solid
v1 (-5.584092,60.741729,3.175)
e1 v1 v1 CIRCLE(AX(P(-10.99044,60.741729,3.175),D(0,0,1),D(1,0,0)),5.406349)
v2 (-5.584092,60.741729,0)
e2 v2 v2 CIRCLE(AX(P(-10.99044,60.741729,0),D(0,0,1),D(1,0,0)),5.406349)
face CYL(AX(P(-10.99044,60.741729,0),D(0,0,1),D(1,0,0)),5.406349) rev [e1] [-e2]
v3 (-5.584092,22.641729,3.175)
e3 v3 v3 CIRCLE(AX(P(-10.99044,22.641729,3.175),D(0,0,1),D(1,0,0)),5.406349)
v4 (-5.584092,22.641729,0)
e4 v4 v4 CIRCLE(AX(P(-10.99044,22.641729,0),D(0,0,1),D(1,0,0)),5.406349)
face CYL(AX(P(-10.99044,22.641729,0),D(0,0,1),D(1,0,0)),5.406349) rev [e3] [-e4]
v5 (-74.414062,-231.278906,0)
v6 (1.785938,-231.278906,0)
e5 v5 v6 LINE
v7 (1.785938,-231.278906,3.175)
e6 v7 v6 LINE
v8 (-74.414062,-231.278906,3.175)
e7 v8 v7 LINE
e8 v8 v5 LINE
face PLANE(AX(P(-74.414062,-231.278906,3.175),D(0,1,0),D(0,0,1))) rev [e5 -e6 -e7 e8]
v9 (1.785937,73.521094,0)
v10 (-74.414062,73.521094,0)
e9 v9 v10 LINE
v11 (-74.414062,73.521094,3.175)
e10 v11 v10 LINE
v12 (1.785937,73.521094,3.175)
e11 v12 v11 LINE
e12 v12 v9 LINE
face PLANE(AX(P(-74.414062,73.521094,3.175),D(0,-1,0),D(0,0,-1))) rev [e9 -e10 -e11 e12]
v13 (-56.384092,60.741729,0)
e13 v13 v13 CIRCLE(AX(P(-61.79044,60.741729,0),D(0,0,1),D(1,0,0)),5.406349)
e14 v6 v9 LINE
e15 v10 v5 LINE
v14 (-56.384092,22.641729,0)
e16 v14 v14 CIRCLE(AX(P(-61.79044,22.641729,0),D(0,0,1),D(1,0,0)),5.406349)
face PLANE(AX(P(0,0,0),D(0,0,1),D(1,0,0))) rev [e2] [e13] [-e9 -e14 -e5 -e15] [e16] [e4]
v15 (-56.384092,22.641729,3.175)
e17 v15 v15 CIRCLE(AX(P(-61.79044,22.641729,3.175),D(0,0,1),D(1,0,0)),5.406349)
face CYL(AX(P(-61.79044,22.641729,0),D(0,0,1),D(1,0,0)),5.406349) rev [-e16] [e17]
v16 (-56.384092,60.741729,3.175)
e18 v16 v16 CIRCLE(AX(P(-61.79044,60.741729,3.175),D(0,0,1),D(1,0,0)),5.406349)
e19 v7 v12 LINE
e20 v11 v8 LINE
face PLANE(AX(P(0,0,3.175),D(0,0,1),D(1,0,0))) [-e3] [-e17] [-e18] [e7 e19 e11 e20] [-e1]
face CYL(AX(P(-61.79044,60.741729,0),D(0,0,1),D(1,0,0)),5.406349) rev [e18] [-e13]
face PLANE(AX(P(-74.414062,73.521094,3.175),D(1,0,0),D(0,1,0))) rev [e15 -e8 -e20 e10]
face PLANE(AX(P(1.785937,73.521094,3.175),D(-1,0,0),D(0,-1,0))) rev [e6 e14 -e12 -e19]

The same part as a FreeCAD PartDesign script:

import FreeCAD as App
import Part
import Sketcher
Q = App.Units.Quantity

doc = App.newDocument("Part")
body = doc.addObject("PartDesign::Body", "Body")

sketch1 = body.newObject("Sketcher::SketchObject", "Sketch")
sketch1.AttachmentSupport = (doc.getObject("XY_Plane"), [""])
sketch1.MapMode = "FlatFace"
sketch1.addGeometry([
    Part.LineSegment(App.Vector(-74, 74, 0), App.Vector(-74, -231, 0)),
    Part.LineSegment(App.Vector(-74, -231, 0), App.Vector(2, -231, 0)),
    Part.LineSegment(App.Vector(2, -231, 0), App.Vector(2, 74, 0)),
    Part.LineSegment(App.Vector(2, 74, 0), App.Vector(-74, 74, 0)),
], False)
sketch1.addConstraint([
    Sketcher.Constraint("Coincident", 0, 2, 1, 1),
    Sketcher.Constraint("Coincident", 1, 2, 2, 1),
    Sketcher.Constraint("Coincident", 2, 2, 3, 1),
    Sketcher.Constraint("Coincident", 3, 2, 0, 1),
    Sketcher.Constraint("Vertical", 0),
    Sketcher.Constraint("Horizontal", 1),
    Sketcher.Constraint("Vertical", 2),
    Sketcher.Constraint("Horizontal", 3),
    Sketcher.Constraint("DistanceX", 1, 1, 1, 2, Q("3 in")),
    Sketcher.Constraint("DistanceY", 0, 2, 0, 1, Q("12 in")),
    Sketcher.Constraint("DistanceX", 0, 2, -1, 1, 74.414062),
    Sketcher.Constraint("DistanceY", 0, 2, -1, 1, 231.278906),
])
pad1 = body.newObject("PartDesign::Pad", "Pad")
pad1.Profile = sketch1
pad1.Length = Q("0.125 in")

sketch2 = body.newObject("Sketcher::SketchObject", "Sketch001")
sketch2.AttachmentSupport = (doc.getObject("XY_Plane"), [""])
sketch2.MapMode = "FlatFace"
sketch2.AttachmentOffset = App.Placement(App.Vector(0, 0, 0.125 * 25.4), App.Rotation())
sketch2.addGeometry([
    Part.Circle(App.Vector(-62, 61, 0), App.Vector(0, 0, 1), 5),
    Part.Circle(App.Vector(-11, 61, 0), App.Vector(0, 0, 1), 5),
    Part.Circle(App.Vector(-62, 23, 0), App.Vector(0, 0, 1), 5),
    Part.Circle(App.Vector(-11, 23, 0), App.Vector(0, 0, 1), 5),
], False)
sketch2.addConstraint([
    Sketcher.Constraint("Equal", 0, 1),
    Sketcher.Constraint("Equal", 1, 2),
    Sketcher.Constraint("Equal", 2, 3),
    Sketcher.Constraint("Horizontal", 0, 3, 1, 3),
    Sketcher.Constraint("Horizontal", 2, 3, 3, 3),
    Sketcher.Constraint("Vertical", 0, 3, 2, 3),
    Sketcher.Constraint("Vertical", 1, 3, 3, 3),
    Sketcher.Constraint("DistanceX", 0, 3, 1, 3, Q("2 in")),
    Sketcher.Constraint("DistanceY", 2, 3, 0, 3, Q("1.5 in")),
    Sketcher.Constraint("Diameter", 0, 10.812697),
    Sketcher.Constraint("DistanceX", 0, 3, -1, 1, 61.79044),
    Sketcher.Constraint("DistanceY", -1, 1, 0, 3, 60.741729),
])
pocket1 = body.newObject("PartDesign::Pocket", "Pocket")
pocket1.Profile = sketch2
pocket1.Length = Q("0.125 in")

doc.recompute()
